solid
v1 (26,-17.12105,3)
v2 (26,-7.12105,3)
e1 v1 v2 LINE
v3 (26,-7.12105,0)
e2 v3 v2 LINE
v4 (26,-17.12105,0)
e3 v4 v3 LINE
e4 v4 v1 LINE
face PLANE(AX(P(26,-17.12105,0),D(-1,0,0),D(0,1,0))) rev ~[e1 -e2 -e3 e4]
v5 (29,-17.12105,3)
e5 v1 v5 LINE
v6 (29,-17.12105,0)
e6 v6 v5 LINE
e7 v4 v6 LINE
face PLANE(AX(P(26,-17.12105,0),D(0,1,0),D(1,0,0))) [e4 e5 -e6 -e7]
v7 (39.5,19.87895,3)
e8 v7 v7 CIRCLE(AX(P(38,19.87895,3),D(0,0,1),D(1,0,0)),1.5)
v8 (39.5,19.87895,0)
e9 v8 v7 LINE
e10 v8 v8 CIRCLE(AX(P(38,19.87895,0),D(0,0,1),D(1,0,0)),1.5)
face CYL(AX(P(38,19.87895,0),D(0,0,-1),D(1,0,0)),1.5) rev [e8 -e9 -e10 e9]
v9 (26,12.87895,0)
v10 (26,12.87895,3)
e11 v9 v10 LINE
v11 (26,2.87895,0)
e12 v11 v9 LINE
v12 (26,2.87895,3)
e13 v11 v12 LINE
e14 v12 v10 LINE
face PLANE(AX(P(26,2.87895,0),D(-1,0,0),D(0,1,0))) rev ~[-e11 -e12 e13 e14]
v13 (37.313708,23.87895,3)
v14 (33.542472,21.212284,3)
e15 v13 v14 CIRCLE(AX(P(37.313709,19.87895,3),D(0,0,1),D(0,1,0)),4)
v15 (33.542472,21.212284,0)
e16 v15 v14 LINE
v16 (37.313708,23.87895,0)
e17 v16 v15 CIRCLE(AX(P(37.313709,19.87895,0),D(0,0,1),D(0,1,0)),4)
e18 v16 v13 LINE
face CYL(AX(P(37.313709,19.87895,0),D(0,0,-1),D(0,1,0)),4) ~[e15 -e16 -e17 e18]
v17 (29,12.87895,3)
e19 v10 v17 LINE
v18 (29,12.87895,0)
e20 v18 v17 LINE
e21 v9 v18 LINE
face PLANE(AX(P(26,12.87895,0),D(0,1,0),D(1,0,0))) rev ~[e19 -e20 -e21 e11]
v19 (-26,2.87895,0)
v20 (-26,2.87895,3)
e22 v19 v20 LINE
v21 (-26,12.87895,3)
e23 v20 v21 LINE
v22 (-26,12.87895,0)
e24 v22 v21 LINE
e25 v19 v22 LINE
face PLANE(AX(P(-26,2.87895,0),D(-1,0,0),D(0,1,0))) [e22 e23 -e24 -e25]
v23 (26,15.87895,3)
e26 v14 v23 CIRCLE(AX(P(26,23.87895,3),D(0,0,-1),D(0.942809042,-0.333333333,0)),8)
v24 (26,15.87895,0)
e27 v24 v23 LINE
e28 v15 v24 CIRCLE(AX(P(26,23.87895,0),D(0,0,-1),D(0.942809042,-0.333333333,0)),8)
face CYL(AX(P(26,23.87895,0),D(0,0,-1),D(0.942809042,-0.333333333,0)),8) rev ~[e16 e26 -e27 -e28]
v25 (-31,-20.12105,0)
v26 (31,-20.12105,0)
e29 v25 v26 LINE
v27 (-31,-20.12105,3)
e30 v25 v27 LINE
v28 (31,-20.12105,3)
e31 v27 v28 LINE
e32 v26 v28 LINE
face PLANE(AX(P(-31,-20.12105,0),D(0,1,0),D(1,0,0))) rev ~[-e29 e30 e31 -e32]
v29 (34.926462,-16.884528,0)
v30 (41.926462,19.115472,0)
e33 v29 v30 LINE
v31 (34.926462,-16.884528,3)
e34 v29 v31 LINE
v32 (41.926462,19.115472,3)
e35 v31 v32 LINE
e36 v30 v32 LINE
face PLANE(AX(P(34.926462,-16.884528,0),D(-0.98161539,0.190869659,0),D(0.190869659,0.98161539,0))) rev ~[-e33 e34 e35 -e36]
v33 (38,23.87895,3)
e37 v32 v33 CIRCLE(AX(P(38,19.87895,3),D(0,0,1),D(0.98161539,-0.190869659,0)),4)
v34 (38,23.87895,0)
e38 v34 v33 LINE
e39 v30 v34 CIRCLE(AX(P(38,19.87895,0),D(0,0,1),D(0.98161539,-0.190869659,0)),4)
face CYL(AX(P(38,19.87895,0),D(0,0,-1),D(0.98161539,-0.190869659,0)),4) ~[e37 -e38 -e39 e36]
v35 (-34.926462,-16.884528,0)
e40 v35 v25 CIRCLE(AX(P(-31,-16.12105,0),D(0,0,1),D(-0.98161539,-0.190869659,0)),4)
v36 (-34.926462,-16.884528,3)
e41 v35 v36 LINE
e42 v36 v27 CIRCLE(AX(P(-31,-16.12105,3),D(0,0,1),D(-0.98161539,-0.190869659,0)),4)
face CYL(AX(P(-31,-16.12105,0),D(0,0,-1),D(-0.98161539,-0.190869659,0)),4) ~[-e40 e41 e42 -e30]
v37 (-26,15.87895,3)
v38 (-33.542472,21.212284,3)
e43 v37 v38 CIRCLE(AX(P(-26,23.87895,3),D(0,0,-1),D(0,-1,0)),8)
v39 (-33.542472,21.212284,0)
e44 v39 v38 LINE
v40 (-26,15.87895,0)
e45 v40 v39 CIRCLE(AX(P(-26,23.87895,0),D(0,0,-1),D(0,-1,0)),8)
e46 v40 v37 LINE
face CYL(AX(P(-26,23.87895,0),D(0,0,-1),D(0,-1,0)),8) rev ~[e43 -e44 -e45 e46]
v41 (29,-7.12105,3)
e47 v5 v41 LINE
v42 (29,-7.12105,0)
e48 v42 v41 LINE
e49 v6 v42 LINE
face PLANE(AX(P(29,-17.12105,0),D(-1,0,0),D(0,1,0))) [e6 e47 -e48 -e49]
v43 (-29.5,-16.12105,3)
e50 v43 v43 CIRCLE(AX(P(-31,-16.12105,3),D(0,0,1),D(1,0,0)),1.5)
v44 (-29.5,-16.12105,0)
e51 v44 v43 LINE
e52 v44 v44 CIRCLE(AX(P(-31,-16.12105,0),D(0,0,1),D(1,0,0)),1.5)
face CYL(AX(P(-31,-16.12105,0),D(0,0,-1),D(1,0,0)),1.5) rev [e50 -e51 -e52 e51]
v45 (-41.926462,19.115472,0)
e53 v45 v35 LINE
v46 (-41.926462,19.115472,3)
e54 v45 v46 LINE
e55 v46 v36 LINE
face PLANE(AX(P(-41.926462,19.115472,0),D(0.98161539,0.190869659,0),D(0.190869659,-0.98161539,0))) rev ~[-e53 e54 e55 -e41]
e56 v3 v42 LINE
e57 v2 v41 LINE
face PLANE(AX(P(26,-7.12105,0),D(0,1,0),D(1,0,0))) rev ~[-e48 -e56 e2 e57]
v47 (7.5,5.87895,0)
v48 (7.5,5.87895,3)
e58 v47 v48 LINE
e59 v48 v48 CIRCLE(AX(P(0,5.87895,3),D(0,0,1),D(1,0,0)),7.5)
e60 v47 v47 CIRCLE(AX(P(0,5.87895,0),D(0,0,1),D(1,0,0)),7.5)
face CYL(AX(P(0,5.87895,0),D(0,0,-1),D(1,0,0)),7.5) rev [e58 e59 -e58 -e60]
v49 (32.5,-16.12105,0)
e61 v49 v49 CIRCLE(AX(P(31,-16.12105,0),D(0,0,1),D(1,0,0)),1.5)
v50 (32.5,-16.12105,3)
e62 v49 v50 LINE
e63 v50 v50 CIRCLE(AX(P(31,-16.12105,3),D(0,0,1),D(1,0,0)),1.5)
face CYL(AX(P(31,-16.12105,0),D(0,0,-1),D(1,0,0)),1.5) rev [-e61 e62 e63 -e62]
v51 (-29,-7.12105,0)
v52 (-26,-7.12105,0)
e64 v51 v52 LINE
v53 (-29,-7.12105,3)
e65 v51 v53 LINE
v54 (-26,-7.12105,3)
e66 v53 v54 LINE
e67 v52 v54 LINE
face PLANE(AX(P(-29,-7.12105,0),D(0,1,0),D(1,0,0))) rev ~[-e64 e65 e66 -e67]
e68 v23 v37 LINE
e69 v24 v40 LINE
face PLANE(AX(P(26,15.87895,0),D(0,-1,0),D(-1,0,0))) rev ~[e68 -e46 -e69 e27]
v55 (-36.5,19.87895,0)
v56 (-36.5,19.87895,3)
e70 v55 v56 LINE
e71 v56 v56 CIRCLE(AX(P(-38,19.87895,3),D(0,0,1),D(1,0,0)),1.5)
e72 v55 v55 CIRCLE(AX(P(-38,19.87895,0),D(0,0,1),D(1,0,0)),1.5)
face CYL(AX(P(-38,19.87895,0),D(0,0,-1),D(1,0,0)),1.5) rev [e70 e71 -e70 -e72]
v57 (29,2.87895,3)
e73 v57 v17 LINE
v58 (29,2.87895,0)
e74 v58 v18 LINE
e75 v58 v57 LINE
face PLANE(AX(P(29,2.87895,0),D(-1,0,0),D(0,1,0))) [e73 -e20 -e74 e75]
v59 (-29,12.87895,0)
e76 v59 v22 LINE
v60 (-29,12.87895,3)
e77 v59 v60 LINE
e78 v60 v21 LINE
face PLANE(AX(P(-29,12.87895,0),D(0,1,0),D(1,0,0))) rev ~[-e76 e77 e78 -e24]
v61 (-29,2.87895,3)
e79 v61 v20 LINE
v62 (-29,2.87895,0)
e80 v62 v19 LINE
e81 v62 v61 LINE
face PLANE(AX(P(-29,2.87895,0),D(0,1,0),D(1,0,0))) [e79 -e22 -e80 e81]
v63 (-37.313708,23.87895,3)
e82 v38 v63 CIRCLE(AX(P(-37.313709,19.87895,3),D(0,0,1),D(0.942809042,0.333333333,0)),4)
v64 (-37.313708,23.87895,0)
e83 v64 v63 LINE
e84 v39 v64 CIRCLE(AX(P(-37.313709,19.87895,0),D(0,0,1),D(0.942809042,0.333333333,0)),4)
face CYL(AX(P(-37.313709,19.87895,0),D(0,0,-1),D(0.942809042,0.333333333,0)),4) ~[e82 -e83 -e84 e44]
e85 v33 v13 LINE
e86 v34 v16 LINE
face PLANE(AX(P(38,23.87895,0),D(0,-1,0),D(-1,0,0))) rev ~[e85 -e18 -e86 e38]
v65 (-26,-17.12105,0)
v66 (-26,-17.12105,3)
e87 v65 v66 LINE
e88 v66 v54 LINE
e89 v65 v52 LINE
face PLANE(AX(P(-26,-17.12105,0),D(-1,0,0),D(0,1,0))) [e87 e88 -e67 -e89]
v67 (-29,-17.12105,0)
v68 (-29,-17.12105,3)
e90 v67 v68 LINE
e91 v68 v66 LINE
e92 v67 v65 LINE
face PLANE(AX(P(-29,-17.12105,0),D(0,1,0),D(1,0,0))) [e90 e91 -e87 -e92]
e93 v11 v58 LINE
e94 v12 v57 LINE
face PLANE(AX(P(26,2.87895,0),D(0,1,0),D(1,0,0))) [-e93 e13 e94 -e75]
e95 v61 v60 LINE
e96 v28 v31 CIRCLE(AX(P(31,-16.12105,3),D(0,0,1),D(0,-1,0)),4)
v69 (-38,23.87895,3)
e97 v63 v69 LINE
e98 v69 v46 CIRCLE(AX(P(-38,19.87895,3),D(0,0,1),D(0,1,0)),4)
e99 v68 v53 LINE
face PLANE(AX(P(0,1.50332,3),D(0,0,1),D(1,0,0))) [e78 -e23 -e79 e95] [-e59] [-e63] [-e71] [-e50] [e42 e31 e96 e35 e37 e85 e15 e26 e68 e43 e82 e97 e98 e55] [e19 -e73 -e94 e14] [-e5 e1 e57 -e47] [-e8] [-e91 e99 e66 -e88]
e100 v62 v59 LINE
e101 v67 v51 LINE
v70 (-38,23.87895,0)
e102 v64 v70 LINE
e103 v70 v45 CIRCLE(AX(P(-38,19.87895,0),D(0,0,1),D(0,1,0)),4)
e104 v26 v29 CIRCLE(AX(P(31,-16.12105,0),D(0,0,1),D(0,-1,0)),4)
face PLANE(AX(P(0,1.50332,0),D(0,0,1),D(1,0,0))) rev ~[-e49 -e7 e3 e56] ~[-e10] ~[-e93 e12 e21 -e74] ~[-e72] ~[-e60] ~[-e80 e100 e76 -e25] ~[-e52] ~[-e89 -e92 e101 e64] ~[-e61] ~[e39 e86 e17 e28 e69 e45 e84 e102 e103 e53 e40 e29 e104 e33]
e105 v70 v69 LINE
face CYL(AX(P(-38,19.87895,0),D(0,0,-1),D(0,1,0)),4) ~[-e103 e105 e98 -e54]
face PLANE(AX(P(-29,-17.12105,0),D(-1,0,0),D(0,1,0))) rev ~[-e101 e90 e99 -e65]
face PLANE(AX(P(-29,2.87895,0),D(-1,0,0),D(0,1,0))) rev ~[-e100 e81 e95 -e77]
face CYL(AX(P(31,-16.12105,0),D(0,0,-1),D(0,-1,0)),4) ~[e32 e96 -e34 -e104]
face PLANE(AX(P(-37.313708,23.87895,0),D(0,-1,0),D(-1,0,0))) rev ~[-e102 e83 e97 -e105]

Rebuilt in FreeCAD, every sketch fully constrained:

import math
import FreeCAD as App
import Part
import Sketcher

V = App.Vector


def add_polygon(sketch, points):
    """Adds a closed chain of lines whose ends are joined by coincident constraints."""
    first, n = sketch.GeometryCount, len(points)
    for a, b in zip(points, points[1:] + points[:1]):
        sketch.addGeometry(Part.LineSegment(App.Vector(*a, 0), App.Vector(*b, 0)), False)
    for i in range(n):
        sketch.addConstraint(Sketcher.Constraint("Coincident", first + i, 2, first + (i + 1) % n, 1))

doc = App.newDocument("Part")
params = doc.addObject("Spreadsheet::Sheet", "Params")
for row, (alias, value) in enumerate([
    ("sketch1_diameter", "3 mm"),
    ("sketch1_diameter2", "15 mm"),
    ("sketch1_radius", "4 mm"),
    ("sketch1_radius2", "8 mm"),
    ("sketch1_width", "62 mm"),
    ("pad1_length", "3 mm"),
], start=1):
    params.set(f"A{row}", alias)
    params.set(f"B{row}", "=" + value)
    params.setAlias(f"B{row}", alias)

body = doc.addObject("PartDesign::Body", "Body")

sketch1 = doc.addObject("Sketcher::SketchObject", "Sketch")
body.addObject(sketch1)
sketch1.AttachmentSupport = (doc.XY_Plane, [""])
sketch1.MapMode = "FlatFace"
sketch1.addGeometry(Part.LineSegment(V(-41.9, 19.1, 0), V(-34.9, -16.9, 0)), False)
sketch1.addGeometry(Part.ArcOfCircle(Part.Circle(V(-31, -16.1, 0), V(0, 0, 1), 4), math.radians(-169), math.radians(-90)), False)
sketch1.addGeometry(Part.LineSegment(V(-31, -20.1, 0), V(31, -20.1, 0)), False)
sketch1.addGeometry(Part.ArcOfCircle(Part.Circle(V(31, -16.1, 0), V(0, 0, 1), 4), math.radians(-90), math.radians(-11)), False)
sketch1.addGeometry(Part.LineSegment(V(34.9, -16.9, 0), V(41.9, 19.1, 0)), False)
sketch1.addGeometry(Part.ArcOfCircle(Part.Circle(V(38, 19.9, 0), V(0, 0, 1), 4), math.radians(-11), math.radians(90)), False)
sketch1.addGeometry(Part.LineSegment(V(38, 23.9, 0), V(37.3, 23.9, 0)), False)
sketch1.addGeometry(Part.ArcOfCircle(Part.Circle(V(37.3, 19.9, 0), V(0, 0, 1), 4), math.radians(90), math.radians(161)), False)
sketch1.addGeometry(Part.ArcOfCircle(Part.Circle(V(26, 23.9, 0), V(0, 0, 1), 8), math.radians(-90), math.radians(-19)), False)
sketch1.addGeometry(Part.LineSegment(V(26, 15.9, 0), V(-26, 15.9, 0)), False)
sketch1.addGeometry(Part.ArcOfCircle(Part.Circle(V(-26, 23.9, 0), V(0, 0, 1), 8), math.radians(-161), math.radians(-90)), False)
sketch1.addGeometry(Part.ArcOfCircle(Part.Circle(V(-37.3, 19.9, 0), V(0, 0, 1), 4), math.radians(19), math.radians(90)), False)
sketch1.addGeometry(Part.LineSegment(V(-37.3, 23.9, 0), V(-38, 23.9, 0)), False)
sketch1.addGeometry(Part.ArcOfCircle(Part.Circle(V(-38, 19.9, 0), V(0, 0, 1), 4), math.radians(90), math.radians(191)), False)
sketch1.addGeometry(Part.Circle(V(-31, -16.1, 0), V(0, 0, 1), 1.5), False)
add_polygon(sketch1, [(-26, -17.1), (-29, -17.1), (-29, -7.1), (-26, -7.1)])
sketch1.addGeometry(Part.Circle(V(31, -16.1, 0), V(0, 0, 1), 1.5), False)
add_polygon(sketch1, [(29, -17.1), (26, -17.1), (26, -7.1), (29, -7.1)])
add_polygon(sketch1, [(-26, 2.9), (-29, 2.9), (-29, 12.9), (-26, 12.9)])
sketch1.addGeometry(Part.Circle(V(-38, 19.9, 0), V(0, 0, 1), 1.5), False)
sketch1.addGeometry(Part.Circle(V(0, 5.9, 0), V(0, 0, 1), 7.5), False)
add_polygon(sketch1, [(29, 2.9), (26, 2.9), (26, 12.9), (29, 12.9)])
sketch1.addGeometry(Part.Circle(V(38, 19.9, 0), V(0, 0, 1), 1.5), False)
sketch1.addConstraint([
    Sketcher.Constraint("Tangent", 0, 2, 1, 1),
    Sketcher.Constraint("Tangent", 1, 2, 2, 1),
    Sketcher.Constraint("Tangent", 2, 2, 3, 1),
    Sketcher.Constraint("Tangent", 3, 2, 4, 1),
    Sketcher.Constraint("Tangent", 4, 2, 5, 1),
    Sketcher.Constraint("Tangent", 5, 2, 6, 1),
    Sketcher.Constraint("Tangent", 6, 2, 7, 1),
    Sketcher.Constraint("Tangent", 7, 2, 8, 2),
    Sketcher.Constraint("Tangent", 8, 1, 9, 1),
    Sketcher.Constraint("Tangent", 9, 2, 10, 2),
    Sketcher.Constraint("Tangent", 10, 1, 11, 1),
    Sketcher.Constraint("Tangent", 11, 2, 12, 1),
    Sketcher.Constraint("Tangent", 12, 2, 13, 1),
    Sketcher.Constraint("Tangent", 13, 2, 0, 1),
    Sketcher.Constraint("Horizontal", 2),
    Sketcher.Constraint("Horizontal", 6),
    Sketcher.Constraint("Horizontal", 9),
    Sketcher.Constraint("Horizontal", 12),
    Sketcher.Constraint("Horizontal", 15),
    Sketcher.Constraint("Vertical", 16),
    Sketcher.Constraint("Horizontal", 17),
    Sketcher.Constraint("Vertical", 18),
    Sketcher.Constraint("Horizontal", 20),
    Sketcher.Constraint("Vertical", 21),
    Sketcher.Constraint("Horizontal", 22),
    Sketcher.Constraint("Vertical", 23),
    Sketcher.Constraint("Horizontal", 24),
    Sketcher.Constraint("Vertical", 25),
    Sketcher.Constraint("Horizontal", 26),
    Sketcher.Constraint("Vertical", 27),
    Sketcher.Constraint("Horizontal", 30),
    Sketcher.Constraint("Vertical", 31),
    Sketcher.Constraint("Horizontal", 32),
    Sketcher.Constraint("Vertical", 33),
    Sketcher.Constraint("Coincident", 14, 3, 1, 3),
    Sketcher.Constraint("Coincident", 19, 3, 3, 3),
    Sketcher.Constraint("Coincident", 28, 3, 13, 3),
    Sketcher.Constraint("Coincident", 34, 3, 5, 3),
    Sketcher.Constraint("Equal", 1, 3),
    Sketcher.Constraint("Equal", 3, 5),
    Sketcher.Constraint("Equal", 5, 7),
    Sketcher.Constraint("Equal", 8, 10),
    Sketcher.Constraint("Equal", 7, 11),
    Sketcher.Constraint("Equal", 11, 13),
    Sketcher.Constraint("Equal", 14, 19),
    Sketcher.Constraint("Equal", 19, 28),
    Sketcher.Constraint("Equal", 28, 34),
    Sketcher.Constraint("Symmetric", 7, 3, 11, 3, -2),
    Sketcher.Constraint("Symmetric", 0, 2, 3, 2, -2),
    Sketcher.Constraint("Symmetric", 18, 2, 20, 2, -2),
    Sketcher.Constraint("Symmetric", 16, 2, 22, 2, -2),
    Sketcher.Constraint("Symmetric", 27, 2, 30, 2, -2),
    Sketcher.Constraint("Symmetric", 25, 2, 32, 2, -2),
    Sketcher.Constraint("PointOnObject", 29, 3, -2),
    Sketcher.Constraint("Horizontal", 10, 3, 5, 2),
    Sketcher.Constraint("Vertical", 9, 2, 17, 2),
    Sketcher.Constraint("Vertical", 16, 2, 24, 2),
    Sketcher.Constraint("Vertical", 18, 2, 26, 2),
    Sketcher.Constraint("Equal", 23, 25),
    Sketcher.Constraint("Diameter", 14, 3.0),
    Sketcher.Constraint("Diameter", 29, 15.0),
    Sketcher.Constraint("Radius", 1, 4.0),
    Sketcher.Constraint("Radius", 8, 8.0),
    Sketcher.Constraint("DistanceX", 2, 1, 2, 2, 62.0),
    Sketcher.Constraint("DistanceX", 9, 2, 9, 1, 52.0),
    Sketcher.Constraint("DistanceX", 15, 2, 15, 1, 3.0),
    Sketcher.Constraint("DistanceY", 16, 1, 16, 2, 10.0),
    Sketcher.Constraint("DistanceX", -1, 1, 5, 3, 38.0),
    Sketcher.Constraint("DistanceY", 3, 3, 5, 3, 36.0),
    Sketcher.Constraint("DistanceY", 29, 3, 8, 3, 18.0),
    Sketcher.Constraint("DistanceY", 15, 2, 14, 3, 1.0),
    Sketcher.Constraint("DistanceY", 16, 2, 24, 2, 10.0),
    Sketcher.Constraint("DistanceY", 1, 3, -1, 1, 16.12105),
])
sketch1.setExpression("Constraints[75]", "Params.sketch1_diameter")
sketch1.setExpression("Constraints[76]", "Params.sketch1_diameter2")
sketch1.setExpression("Constraints[77]", "Params.sketch1_radius")
sketch1.setExpression("Constraints[78]", "Params.sketch1_radius2")
sketch1.setExpression("Constraints[79]", "Params.sketch1_width")
pad1 = doc.addObject("PartDesign::Pad", "Pad")
body.addObject(pad1)
pad1.Profile = sketch1
pad1.setExpression("Length", "Params.pad1_length")

doc.recompute()
